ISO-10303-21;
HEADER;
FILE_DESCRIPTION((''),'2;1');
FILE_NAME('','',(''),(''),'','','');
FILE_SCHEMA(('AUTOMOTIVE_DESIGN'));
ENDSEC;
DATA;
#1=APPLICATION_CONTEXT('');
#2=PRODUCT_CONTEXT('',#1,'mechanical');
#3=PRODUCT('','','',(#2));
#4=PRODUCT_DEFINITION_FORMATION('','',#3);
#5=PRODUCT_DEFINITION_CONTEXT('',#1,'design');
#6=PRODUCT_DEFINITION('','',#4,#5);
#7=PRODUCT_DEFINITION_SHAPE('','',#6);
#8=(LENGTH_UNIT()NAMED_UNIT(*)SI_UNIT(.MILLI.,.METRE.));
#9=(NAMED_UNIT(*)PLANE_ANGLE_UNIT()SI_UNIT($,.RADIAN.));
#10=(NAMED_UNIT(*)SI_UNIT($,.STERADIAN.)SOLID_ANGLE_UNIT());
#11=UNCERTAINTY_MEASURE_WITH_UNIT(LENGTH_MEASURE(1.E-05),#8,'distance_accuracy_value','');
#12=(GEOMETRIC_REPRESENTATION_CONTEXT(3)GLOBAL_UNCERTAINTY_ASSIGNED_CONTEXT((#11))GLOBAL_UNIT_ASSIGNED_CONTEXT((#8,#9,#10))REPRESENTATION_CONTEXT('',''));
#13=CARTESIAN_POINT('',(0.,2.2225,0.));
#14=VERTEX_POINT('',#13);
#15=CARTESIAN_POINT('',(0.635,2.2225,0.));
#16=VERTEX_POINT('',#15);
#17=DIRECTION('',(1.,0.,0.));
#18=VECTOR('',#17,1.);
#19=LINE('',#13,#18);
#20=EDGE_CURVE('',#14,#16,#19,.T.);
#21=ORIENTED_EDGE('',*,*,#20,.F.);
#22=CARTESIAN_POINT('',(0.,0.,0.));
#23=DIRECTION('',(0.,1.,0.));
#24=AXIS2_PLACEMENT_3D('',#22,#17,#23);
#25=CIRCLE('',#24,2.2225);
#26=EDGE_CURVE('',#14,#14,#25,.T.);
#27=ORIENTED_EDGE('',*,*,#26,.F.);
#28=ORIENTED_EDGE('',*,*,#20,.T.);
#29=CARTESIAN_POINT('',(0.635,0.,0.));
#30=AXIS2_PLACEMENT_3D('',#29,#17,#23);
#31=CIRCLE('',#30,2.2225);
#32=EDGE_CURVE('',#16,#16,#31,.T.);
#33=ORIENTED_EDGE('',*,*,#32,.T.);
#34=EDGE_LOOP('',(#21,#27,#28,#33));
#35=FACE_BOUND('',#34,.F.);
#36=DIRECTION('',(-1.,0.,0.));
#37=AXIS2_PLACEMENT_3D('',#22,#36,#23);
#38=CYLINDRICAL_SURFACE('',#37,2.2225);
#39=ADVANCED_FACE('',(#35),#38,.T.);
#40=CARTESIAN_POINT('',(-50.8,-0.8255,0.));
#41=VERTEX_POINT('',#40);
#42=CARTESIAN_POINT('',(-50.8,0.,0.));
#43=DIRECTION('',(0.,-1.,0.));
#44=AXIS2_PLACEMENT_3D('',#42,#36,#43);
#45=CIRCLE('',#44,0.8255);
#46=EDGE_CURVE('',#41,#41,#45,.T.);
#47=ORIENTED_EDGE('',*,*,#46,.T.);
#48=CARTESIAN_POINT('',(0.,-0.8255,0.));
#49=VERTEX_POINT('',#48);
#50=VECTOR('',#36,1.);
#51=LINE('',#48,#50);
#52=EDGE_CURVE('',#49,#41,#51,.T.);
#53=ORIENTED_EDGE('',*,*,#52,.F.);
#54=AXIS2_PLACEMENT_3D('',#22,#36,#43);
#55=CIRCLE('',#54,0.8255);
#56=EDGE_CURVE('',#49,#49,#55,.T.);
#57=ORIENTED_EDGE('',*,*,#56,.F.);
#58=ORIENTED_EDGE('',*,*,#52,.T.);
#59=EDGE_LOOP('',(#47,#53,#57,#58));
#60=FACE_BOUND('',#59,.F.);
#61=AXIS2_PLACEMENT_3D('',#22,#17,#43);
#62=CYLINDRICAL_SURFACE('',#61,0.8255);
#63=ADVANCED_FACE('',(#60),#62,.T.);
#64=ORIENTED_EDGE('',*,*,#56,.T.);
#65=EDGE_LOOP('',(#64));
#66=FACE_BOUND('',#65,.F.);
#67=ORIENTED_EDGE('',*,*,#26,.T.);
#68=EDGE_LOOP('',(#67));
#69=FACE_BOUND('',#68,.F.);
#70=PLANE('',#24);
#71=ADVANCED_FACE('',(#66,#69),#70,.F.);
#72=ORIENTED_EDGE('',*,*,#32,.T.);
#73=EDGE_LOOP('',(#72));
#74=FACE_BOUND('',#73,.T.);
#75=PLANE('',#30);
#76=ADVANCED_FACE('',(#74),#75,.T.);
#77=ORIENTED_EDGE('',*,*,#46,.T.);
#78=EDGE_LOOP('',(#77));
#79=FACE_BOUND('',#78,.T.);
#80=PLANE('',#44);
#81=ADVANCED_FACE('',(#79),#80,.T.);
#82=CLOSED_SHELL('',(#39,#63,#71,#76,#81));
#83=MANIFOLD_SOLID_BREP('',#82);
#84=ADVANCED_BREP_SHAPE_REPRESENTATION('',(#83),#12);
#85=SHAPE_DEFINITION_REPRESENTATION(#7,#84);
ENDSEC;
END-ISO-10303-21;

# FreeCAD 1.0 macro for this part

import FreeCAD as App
import Part
import Sketcher
from FreeCAD import Vector
Q = App.Units.Quantity

doc = App.newDocument("Part")
body = doc.addObject("PartDesign::Body", "Body")

# Sketch on YZ plane
sketch1 = body.newObject("Sketcher::SketchObject", "Sketch")
sketch1.AttachmentSupport = (doc.getObject("YZ_Plane"), [""])
sketch1.MapMode = "FlatFace"
sketch1.addGeometry(Part.Circle(Vector(0, 0, 0), Vector(0, 0, 1), 2.2), False)
sketch1.addConstraint(Sketcher.Constraint("Coincident", 0, 3, -1, 1))
sketch1.addConstraint(Sketcher.Constraint("Diameter", 0, Q("0.175 in")))
pad1 = body.newObject("PartDesign::Pad", "Pad")
pad1.Profile = sketch1
pad1.Length = Q("0.025 in")

# Sketch on YZ plane
sketch2 = body.newObject("Sketcher::SketchObject", "Sketch001")
sketch2.AttachmentSupport = (doc.getObject("YZ_Plane"), [""])
sketch2.MapMode = "FlatFace"
sketch2.addGeometry(Part.Circle(Vector(0, 0, 0), Vector(0, 0, 1), 0.8), False)
sketch2.addConstraint(Sketcher.Constraint("Coincident", 0, 3, -1, 1))
sketch2.addConstraint(Sketcher.Constraint("Diameter", 0, Q("0.065 in")))
pad2 = body.newObject("PartDesign::Pad", "Pad001")
pad2.Profile = sketch2
pad2.Length = Q("2 in")
pad2.Reversed = True

doc.recompute()
